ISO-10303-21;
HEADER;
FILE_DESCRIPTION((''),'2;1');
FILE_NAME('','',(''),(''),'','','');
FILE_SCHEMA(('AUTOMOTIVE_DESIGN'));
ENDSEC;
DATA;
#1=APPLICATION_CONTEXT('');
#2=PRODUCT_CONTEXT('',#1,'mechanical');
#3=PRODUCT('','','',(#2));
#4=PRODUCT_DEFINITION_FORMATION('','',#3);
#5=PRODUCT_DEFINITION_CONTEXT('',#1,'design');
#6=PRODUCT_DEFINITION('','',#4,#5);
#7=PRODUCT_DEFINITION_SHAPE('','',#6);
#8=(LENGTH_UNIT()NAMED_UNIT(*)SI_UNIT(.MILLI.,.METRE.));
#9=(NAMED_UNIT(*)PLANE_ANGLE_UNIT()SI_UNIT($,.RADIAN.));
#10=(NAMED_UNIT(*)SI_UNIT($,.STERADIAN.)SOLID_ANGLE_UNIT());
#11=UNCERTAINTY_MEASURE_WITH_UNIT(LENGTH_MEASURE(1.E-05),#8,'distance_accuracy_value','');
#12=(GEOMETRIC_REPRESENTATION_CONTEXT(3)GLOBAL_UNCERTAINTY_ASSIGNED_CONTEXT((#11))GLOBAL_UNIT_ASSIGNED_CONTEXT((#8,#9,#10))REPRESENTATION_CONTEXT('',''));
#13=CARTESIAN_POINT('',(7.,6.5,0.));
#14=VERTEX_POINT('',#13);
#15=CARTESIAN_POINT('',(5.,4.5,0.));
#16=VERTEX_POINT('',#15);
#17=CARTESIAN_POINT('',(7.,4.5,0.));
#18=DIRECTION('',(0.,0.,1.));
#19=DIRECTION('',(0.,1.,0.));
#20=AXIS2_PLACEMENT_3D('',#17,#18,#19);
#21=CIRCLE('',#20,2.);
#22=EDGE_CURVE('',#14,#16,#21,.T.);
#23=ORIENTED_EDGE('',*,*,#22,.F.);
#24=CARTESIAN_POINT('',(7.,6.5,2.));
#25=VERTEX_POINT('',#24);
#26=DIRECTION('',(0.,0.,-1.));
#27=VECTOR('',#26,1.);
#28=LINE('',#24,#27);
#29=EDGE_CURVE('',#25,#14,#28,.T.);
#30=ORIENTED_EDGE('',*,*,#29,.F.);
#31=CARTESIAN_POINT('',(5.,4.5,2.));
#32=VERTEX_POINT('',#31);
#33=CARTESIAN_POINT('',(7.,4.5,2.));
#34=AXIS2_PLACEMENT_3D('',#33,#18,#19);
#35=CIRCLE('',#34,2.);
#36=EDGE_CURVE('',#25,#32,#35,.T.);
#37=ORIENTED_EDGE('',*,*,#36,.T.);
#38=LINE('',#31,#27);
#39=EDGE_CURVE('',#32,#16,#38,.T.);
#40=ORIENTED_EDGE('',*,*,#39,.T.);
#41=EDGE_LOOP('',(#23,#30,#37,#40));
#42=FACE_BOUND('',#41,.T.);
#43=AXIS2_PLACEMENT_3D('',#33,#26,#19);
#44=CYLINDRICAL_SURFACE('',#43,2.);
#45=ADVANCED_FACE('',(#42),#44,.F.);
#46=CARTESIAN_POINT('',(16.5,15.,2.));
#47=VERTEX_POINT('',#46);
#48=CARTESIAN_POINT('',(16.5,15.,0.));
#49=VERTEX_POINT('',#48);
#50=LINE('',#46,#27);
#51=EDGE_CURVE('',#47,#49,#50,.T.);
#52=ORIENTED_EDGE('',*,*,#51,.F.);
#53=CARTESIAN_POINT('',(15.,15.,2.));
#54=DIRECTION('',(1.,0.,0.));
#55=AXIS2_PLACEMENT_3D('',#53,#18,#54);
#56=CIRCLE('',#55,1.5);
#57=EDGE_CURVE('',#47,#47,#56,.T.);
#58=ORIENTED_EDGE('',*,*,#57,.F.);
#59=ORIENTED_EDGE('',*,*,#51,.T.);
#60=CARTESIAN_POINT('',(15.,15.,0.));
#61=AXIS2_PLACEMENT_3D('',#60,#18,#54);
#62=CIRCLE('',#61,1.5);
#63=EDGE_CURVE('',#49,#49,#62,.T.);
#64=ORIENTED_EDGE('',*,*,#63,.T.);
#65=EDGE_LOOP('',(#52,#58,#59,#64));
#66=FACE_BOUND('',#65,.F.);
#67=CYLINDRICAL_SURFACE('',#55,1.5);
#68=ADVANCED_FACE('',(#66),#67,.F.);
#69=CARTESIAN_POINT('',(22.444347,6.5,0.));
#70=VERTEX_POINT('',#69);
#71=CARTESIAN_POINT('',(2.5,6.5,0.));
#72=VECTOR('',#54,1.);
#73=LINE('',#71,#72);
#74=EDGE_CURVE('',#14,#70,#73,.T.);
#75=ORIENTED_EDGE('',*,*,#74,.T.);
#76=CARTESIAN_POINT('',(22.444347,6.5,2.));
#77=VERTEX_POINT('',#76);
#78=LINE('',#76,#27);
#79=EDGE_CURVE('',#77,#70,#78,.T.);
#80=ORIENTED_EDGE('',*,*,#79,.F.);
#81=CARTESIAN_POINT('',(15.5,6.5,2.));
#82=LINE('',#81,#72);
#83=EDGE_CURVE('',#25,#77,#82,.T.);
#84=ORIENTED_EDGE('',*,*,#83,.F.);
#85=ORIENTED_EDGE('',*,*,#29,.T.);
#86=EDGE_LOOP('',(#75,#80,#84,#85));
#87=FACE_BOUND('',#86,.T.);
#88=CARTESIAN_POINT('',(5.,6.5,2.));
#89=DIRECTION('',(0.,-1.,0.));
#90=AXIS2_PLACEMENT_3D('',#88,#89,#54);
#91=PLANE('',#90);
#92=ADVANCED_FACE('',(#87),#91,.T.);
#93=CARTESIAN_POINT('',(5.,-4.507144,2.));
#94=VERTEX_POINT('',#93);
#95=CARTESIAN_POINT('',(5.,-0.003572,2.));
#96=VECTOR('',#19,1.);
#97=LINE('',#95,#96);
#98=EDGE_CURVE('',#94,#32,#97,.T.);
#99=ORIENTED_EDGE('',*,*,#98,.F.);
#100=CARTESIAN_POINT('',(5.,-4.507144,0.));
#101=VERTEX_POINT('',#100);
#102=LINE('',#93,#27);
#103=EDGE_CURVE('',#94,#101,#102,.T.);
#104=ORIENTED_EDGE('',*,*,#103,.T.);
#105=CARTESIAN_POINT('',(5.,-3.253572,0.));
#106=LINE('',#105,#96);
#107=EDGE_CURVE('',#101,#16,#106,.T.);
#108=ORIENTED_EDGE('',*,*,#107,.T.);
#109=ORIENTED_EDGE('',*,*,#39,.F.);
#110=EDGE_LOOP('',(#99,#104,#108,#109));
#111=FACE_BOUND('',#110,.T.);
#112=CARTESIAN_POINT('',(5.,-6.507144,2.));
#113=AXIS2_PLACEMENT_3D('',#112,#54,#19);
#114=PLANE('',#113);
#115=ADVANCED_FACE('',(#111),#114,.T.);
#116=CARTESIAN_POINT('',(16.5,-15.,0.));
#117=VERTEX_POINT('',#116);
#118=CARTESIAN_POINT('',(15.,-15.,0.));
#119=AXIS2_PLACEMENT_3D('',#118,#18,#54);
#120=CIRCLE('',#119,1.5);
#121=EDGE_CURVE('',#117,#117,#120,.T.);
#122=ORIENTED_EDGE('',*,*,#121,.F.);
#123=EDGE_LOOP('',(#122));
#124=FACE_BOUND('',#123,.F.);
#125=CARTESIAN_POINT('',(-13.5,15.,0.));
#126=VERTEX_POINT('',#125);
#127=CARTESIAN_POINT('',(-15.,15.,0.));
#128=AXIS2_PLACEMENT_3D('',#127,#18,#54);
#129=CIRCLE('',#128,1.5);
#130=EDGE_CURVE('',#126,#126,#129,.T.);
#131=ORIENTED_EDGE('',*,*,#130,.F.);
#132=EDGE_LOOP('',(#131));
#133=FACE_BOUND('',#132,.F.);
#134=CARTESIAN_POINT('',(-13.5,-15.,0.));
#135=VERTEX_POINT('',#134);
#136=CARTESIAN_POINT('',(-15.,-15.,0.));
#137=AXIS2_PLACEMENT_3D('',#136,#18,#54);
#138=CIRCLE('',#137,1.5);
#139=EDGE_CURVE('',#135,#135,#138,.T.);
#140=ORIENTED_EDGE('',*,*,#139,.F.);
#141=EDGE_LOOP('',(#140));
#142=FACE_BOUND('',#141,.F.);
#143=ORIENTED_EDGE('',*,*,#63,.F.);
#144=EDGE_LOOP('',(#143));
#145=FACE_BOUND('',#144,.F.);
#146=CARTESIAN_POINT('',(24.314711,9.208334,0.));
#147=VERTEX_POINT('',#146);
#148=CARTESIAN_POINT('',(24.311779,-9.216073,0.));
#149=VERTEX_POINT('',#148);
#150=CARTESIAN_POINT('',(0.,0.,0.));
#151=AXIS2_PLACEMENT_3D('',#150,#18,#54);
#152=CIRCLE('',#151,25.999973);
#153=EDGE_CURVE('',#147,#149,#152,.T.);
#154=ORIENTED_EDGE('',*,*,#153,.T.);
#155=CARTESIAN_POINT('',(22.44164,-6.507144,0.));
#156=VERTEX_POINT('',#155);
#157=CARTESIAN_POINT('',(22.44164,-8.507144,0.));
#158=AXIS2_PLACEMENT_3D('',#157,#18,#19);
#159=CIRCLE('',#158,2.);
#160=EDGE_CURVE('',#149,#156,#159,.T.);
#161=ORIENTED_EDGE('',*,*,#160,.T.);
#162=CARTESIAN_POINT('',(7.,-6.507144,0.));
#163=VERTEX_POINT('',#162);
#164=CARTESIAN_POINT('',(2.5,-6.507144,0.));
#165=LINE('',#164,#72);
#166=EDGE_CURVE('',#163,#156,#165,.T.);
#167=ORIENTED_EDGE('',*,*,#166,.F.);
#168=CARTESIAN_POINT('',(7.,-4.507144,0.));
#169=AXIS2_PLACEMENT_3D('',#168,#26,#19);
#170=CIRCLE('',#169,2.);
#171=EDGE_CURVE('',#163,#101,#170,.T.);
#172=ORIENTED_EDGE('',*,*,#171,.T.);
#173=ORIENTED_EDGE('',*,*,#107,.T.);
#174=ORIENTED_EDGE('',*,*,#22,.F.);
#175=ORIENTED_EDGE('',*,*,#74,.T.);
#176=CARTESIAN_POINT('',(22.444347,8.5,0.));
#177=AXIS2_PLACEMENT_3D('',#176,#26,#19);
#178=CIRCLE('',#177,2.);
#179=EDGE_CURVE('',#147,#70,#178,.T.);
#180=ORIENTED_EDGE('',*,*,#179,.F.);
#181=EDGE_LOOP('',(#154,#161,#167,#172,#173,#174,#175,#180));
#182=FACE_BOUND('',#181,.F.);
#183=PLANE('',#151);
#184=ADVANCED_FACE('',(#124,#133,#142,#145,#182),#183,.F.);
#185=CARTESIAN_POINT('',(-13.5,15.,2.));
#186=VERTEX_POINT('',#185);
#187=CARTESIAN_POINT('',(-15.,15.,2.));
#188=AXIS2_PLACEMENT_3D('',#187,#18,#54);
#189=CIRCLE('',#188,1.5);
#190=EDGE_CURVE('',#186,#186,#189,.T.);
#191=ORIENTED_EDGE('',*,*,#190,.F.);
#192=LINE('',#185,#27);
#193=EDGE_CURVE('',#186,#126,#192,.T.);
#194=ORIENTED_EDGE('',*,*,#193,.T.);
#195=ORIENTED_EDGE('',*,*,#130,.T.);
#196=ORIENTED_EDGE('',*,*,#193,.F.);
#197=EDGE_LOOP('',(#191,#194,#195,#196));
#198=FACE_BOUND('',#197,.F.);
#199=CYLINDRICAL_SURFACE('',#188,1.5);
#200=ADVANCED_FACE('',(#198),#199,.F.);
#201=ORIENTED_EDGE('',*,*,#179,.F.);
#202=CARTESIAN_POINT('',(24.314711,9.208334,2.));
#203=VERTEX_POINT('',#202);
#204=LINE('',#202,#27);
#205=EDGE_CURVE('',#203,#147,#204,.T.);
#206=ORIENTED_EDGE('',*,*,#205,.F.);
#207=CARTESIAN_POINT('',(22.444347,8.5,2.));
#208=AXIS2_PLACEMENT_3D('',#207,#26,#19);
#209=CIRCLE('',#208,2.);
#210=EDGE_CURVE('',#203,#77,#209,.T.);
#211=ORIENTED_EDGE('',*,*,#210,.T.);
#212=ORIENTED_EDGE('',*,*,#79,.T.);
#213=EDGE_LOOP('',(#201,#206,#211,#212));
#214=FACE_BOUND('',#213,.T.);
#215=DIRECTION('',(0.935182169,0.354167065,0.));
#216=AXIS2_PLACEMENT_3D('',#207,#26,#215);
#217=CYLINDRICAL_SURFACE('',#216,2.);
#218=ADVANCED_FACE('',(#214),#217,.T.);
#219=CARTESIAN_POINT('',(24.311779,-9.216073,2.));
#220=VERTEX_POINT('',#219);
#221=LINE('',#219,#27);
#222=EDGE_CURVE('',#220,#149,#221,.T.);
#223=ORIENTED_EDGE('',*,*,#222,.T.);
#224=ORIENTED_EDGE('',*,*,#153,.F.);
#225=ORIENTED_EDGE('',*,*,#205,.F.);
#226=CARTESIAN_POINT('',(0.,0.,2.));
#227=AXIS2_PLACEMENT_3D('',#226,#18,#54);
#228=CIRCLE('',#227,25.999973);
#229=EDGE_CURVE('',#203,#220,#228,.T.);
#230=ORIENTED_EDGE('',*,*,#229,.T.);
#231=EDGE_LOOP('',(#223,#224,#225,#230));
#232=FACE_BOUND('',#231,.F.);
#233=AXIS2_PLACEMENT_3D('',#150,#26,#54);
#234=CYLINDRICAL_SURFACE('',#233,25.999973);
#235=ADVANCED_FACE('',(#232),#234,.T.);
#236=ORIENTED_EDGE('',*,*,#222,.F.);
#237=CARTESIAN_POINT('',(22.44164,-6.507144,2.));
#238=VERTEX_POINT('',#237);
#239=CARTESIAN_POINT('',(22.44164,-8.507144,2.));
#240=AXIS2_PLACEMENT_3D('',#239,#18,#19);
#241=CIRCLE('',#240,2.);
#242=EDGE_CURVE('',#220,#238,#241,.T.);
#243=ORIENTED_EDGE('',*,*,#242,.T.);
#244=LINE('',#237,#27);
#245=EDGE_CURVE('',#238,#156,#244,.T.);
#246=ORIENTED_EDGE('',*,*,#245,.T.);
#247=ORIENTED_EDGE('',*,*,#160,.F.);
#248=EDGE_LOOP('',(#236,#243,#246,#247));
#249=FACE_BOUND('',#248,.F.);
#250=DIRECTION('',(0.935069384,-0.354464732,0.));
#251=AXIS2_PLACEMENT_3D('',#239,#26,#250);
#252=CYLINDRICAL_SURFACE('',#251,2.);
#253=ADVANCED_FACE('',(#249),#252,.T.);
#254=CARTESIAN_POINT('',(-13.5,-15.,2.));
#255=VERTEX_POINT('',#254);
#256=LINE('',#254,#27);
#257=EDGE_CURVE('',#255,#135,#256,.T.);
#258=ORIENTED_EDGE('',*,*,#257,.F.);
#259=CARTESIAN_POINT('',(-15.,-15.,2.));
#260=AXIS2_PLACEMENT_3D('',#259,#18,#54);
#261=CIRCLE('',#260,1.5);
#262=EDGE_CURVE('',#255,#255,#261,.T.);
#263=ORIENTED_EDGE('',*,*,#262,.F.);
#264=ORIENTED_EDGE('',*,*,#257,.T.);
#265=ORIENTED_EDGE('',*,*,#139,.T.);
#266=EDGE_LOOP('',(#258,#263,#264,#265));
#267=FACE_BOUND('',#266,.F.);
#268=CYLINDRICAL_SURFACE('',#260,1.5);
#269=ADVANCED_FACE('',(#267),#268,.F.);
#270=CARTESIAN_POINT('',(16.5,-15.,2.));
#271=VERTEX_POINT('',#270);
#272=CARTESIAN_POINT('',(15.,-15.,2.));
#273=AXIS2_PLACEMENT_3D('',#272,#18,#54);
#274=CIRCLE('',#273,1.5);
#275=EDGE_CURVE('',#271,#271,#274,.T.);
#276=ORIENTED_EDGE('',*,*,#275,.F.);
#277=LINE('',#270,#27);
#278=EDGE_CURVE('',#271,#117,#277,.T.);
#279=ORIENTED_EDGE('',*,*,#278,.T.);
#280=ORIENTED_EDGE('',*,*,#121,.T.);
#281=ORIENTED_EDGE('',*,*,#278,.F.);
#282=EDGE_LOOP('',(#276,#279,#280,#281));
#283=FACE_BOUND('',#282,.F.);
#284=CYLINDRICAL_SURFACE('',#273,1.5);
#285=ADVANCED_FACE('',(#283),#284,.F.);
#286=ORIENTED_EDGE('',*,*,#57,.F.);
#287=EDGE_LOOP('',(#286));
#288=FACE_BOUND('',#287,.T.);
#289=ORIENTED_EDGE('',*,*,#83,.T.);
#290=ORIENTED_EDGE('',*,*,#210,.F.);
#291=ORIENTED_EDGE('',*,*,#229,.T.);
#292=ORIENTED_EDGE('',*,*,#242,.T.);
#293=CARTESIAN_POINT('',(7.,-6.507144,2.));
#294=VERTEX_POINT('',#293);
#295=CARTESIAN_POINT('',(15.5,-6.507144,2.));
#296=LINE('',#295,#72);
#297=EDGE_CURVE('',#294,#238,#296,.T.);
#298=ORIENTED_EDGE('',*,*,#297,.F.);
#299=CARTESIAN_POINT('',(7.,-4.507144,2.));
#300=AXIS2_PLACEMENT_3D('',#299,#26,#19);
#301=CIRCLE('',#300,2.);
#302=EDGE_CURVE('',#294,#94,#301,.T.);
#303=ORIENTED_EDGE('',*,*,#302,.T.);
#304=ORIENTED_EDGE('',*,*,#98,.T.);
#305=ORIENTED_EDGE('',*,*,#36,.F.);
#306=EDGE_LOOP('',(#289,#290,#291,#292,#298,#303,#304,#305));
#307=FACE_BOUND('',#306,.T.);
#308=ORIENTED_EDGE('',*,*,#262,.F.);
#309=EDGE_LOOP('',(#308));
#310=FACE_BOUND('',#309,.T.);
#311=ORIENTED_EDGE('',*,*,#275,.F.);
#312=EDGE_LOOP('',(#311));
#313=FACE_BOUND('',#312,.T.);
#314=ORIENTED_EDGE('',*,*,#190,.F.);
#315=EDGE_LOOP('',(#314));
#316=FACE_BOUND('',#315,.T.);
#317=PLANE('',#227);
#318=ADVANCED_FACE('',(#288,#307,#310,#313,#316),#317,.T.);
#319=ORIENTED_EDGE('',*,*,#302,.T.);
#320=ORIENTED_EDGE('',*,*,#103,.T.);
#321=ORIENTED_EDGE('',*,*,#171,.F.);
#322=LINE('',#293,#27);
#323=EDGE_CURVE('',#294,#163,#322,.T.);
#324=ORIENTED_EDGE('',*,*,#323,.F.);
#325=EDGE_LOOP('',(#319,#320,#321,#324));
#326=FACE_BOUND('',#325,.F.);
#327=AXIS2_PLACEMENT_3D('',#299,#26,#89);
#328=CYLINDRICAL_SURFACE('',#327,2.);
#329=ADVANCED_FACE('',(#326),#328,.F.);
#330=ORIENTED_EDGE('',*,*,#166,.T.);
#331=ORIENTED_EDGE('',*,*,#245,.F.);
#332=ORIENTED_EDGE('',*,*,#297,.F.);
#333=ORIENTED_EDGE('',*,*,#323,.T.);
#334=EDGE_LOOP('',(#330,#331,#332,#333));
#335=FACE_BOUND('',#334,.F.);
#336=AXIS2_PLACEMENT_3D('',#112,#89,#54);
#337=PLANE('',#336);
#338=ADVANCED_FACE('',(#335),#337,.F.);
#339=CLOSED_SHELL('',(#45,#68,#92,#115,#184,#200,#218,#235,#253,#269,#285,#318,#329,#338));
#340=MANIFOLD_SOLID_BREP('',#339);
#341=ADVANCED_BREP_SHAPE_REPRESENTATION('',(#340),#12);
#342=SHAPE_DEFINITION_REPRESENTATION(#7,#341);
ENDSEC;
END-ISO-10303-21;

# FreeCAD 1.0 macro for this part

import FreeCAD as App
import Part
import Sketcher
Q = App.Units.Quantity


def edges_at(feature, points):
    """Names of the edges that pass closest to the given points."""
    edges = feature.Shape.Edges
    near = lambda p: min(range(len(edges)), key=lambda i: edges[i].distToShape(Part.Vertex(*p))[0])
    return sorted({f"Edge{near(p) + 1}" for p in points})

doc = App.newDocument("Part")
body = doc.addObject("PartDesign::Body", "Body")

sketch1 = body.newObject("Sketcher::SketchObject", "Sketch")
sketch1.AttachmentSupport = (doc.getObject("XY_Plane"), [""])
sketch1.MapMode = "FlatFace"
sketch1.addGeometry(Part.Circle(App.Vector(0, 0, 0), App.Vector(0, 0, 1), 25.999973), False)
sketch1.addConstraint(Sketcher.Constraint("Coincident", 0, 3, -1, 1))
sketch1.addConstraint(Sketcher.Constraint("Diameter", 0, Q("51.999946 mm")))
pad1 = body.newObject("PartDesign::Pad", "Pad")
pad1.Profile = sketch1
pad1.Length = 2

sketch2 = body.newObject("Sketcher::SketchObject", "Sketch001")
sketch2.AttachmentSupport = (doc.getObject("XY_Plane"), [""])
sketch2.MapMode = "FlatFace"
sketch2.AttachmentOffset = App.Placement(App.Vector(0, 0, 2), App.Rotation())
sketch2.addGeometry(Part.Circle(App.Vector(-15, 15, 0), App.Vector(0, 0, 1), 1.5), False)
sketch2.addGeometry(Part.Circle(App.Vector(15, 15, 0), App.Vector(0, 0, 1), 1.5), False)
sketch2.addGeometry(Part.Circle(App.Vector(15, -15, 0), App.Vector(0, 0, 1), 1.5), False)
sketch2.addGeometry(Part.Circle(App.Vector(-15, -15, 0), App.Vector(0, 0, 1), 1.5), False)
sketch2.addConstraint(Sketcher.Constraint("Equal", 0, 1))
sketch2.addConstraint(Sketcher.Constraint("Equal", 1, 2))
sketch2.addConstraint(Sketcher.Constraint("Equal", 2, 3))
sketch2.addConstraint(Sketcher.Constraint("Symmetric", 0, 3, 2, 3, -1, 1))
sketch2.addConstraint(Sketcher.Constraint("Symmetric", 1, 3, 3, 3, -1, 1))
sketch2.addConstraint(Sketcher.Constraint("Symmetric", 0, 3, 1, 3, -2))
sketch2.addConstraint(Sketcher.Constraint("Diameter", 0, Q("3 mm")))
sketch2.addConstraint(Sketcher.Constraint("DistanceX", 0, 3, -1, 1, Q("15 mm")))
sketch2.addConstraint(Sketcher.Constraint("DistanceY", -1, 1, 0, 3, Q("15 mm")))
pocket1 = body.newObject("PartDesign::Pocket", "Pocket")
pocket1.Profile = sketch2
pocket1.Type = "ThroughAll"

sketch3 = body.newObject("Sketcher::SketchObject", "Sketch002")
sketch3.AttachmentSupport = (doc.getObject("XY_Plane"), [""])
sketch3.MapMode = "FlatFace"
sketch3.AttachmentOffset = App.Placement(App.Vector(0, 0, 2), App.Rotation())
sketch3.addGeometry(Part.LineSegment(App.Vector(5, 6.5, 0), App.Vector(5, -6.507144, 0)), False)
sketch3.addGeometry(Part.LineSegment(App.Vector(5, -6.507144, 0), App.Vector(26, -6.507144, 0)), False)
sketch3.addGeometry(Part.LineSegment(App.Vector(26, -6.507144, 0), App.Vector(26, 6.5, 0)), False)
sketch3.addGeometry(Part.LineSegment(App.Vector(26, 6.5, 0), App.Vector(5, 6.5, 0)), False)
sketch3.addConstraint(Sketcher.Constraint("Coincident", 0, 2, 1, 1))
sketch3.addConstraint(Sketcher.Constraint("Coincident", 1, 2, 2, 1))
sketch3.addConstraint(Sketcher.Constraint("Coincident", 2, 2, 3, 1))
sketch3.addConstraint(Sketcher.Constraint("Coincident", 3, 2, 0, 1))
sketch3.addConstraint(Sketcher.Constraint("Vertical", 0))
sketch3.addConstraint(Sketcher.Constraint("Horizontal", 1))
sketch3.addConstraint(Sketcher.Constraint("Vertical", 2))
sketch3.addConstraint(Sketcher.Constraint("Horizontal", 3))
sketch3.addConstraint(Sketcher.Constraint("DistanceX", 1, 1, 1, 2, Q("21 mm")))
sketch3.addConstraint(Sketcher.Constraint("DistanceX", -1, 1, 0, 2, Q("5 mm")))
sketch3.addConstraint(Sketcher.Constraint("DistanceY", -1, 1, 2, 2, Q("6.5 mm")))
sketch3.addConstraint(Sketcher.Constraint("DistanceY", 0, 2, 0, 1, Q("13.007144 mm")))
pocket2 = body.newObject("PartDesign::Pocket", "Pocket001")
pocket2.Profile = sketch3
pocket2.Length = 5
doc.recompute()

fillet = body.newObject("PartDesign::Fillet", "Fillet")
fillet.Base = (pocket2, edges_at(pocket2, [
    (5, 6.5, 1),
    (5, -6.507, 1),
    (25.173, -6.507, 1),
    (25.174, 6.5, 1),
]))
fillet.Radius = 2

doc.recompute()
